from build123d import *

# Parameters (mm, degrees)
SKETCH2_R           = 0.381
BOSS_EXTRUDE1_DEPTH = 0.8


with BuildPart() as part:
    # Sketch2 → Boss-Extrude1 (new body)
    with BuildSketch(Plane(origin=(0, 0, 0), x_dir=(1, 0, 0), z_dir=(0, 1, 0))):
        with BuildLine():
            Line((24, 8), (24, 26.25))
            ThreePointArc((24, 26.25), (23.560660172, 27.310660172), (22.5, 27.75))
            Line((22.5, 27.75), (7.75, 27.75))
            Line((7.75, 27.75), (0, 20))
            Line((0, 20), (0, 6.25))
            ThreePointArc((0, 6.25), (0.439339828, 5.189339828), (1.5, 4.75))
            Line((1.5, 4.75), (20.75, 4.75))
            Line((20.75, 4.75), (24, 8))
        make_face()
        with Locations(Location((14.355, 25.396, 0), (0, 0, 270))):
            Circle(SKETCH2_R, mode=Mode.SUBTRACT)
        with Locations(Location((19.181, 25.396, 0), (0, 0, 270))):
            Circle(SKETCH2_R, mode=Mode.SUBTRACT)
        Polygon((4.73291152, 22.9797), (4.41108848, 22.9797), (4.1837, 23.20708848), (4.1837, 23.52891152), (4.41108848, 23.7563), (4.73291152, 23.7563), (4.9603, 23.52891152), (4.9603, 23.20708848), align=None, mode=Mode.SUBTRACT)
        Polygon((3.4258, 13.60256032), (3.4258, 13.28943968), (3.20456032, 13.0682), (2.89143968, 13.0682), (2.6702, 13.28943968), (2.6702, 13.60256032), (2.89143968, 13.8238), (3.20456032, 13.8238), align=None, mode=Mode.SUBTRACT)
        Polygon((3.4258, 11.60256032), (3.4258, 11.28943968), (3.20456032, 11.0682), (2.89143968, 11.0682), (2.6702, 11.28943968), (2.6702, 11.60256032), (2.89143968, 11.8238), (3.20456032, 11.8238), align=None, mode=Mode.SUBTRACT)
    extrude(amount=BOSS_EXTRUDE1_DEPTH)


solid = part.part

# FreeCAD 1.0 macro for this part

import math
import FreeCAD as App
import Part
import Sketcher

V = App.Vector
Q = App.Units.Quantity


def add_polygon(sketch, points):
    """Adds a closed chain of lines whose ends are joined by coincident constraints."""
    first, n = sketch.GeometryCount, len(points)
    for a, b in zip(points, points[1:] + points[:1]):
        sketch.addGeometry(Part.LineSegment(App.Vector(*a, 0), App.Vector(*b, 0)), False)
    for i in range(n):
        sketch.addConstraint(Sketcher.Constraint("Coincident", first + i, 2, first + (i + 1) % n, 1))

doc = App.newDocument("Part")
body = doc.addObject("PartDesign::Body", "Body")

sketch1 = body.newObject("Sketcher::SketchObject", "Sketch")
sketch1.AttachmentSupport = (doc.getObject("XZ_Plane"), [""])
sketch1.MapMode = "FlatFace"
sketch1.addGeometry(Part.LineSegment(V(24, -8, 0), V(24, -26.25, 0)), False)
sketch1.addGeometry(Part.ArcOfCircle(Part.Circle(V(22.5, -26.25, 0), V(0, 0, 1), 1.5), math.radians(-90), math.radians(0)), False)
sketch1.addGeometry(Part.LineSegment(V(22.5, -27.75, 0), V(7.75, -27.75, 0)), False)
sketch1.addGeometry(Part.LineSegment(V(7.75, -27.75, 0), V(0, -20, 0)), False)
sketch1.addGeometry(Part.LineSegment(V(0, -20, 0), V(0, -6.25, 0)), False)
sketch1.addGeometry(Part.ArcOfCircle(Part.Circle(V(1.5, -6.25, 0), V(0, 0, 1), 1.5), math.radians(90), math.radians(180)), False)
sketch1.addGeometry(Part.LineSegment(V(1.5, -4.75, 0), V(20.75, -4.75, 0)), False)
sketch1.addGeometry(Part.LineSegment(V(20.75, -4.75, 0), V(24, -8, 0)), False)
add_polygon(sketch1, [(3.2, -11.82), (3.43, -11.6), (3.43, -11.29), (3.2, -11.07), (2.89, -11.07), (2.67, -11.29), (2.67, -11.6), (2.89, -11.82)])
add_polygon(sketch1, [(3.2, -13.82), (3.43, -13.6), (3.43, -13.29), (3.2, -13.07), (2.89, -13.07), (2.67, -13.29), (2.67, -13.6), (2.89, -13.82)])
add_polygon(sketch1, [(4.96, -23.21), (4.73, -22.98), (4.41, -22.98), (4.18, -23.21), (4.18, -23.53), (4.41, -23.76), (4.73, -23.76), (4.96, -23.53)])
sketch1.addGeometry(Part.Circle(V(14.36, -25.4, 0), V(0, 0, 1), 0.38), False)
sketch1.addGeometry(Part.Circle(V(19.18, -25.4, 0), V(0, 0, 1), 0.38), False)
sketch1.addConstraint([
    Sketcher.Constraint("Tangent", 0, 2, 1, 2),
    Sketcher.Constraint("Tangent", 1, 1, 2, 1),
    Sketcher.Constraint("Coincident", 2, 2, 3, 1),
    Sketcher.Constraint("Coincident", 3, 2, 4, 1),
    Sketcher.Constraint("Tangent", 4, 2, 5, 2),
    Sketcher.Constraint("Tangent", 5, 1, 6, 1),
    Sketcher.Constraint("Coincident", 6, 2, 7, 1),
    Sketcher.Constraint("Coincident", 7, 2, 0, 1),
    Sketcher.Constraint("Vertical", 0),
    Sketcher.Constraint("Horizontal", 2),
    Sketcher.Constraint("Vertical", 4),
    Sketcher.Constraint("Horizontal", 6),
    Sketcher.Constraint("Vertical", 9),
    Sketcher.Constraint("Horizontal", 11),
    Sketcher.Constraint("Vertical", 13),
    Sketcher.Constraint("Horizontal", 15),
    Sketcher.Constraint("Vertical", 17),
    Sketcher.Constraint("Horizontal", 19),
    Sketcher.Constraint("Vertical", 21),
    Sketcher.Constraint("Horizontal", 23),
    Sketcher.Constraint("Horizontal", 25),
    Sketcher.Constraint("Vertical", 27),
    Sketcher.Constraint("Horizontal", 29),
    Sketcher.Constraint("Vertical", 31),
    Sketcher.Constraint("Equal", 1, 5),
    Sketcher.Constraint("Equal", 32, 33),
    Sketcher.Constraint("PointOnObject", 3, 2, -2),
    Sketcher.Constraint("Parallel", 3, 7),
    Sketcher.Constraint("Perpendicular", 7, 8),
    Sketcher.Constraint("Perpendicular", 8, 10),
    Sketcher.Constraint("Perpendicular", 10, 12),
    Sketcher.Constraint("Perpendicular", 12, 14),
    Sketcher.Constraint("Perpendicular", 14, 16),
    Sketcher.Constraint("Perpendicular", 16, 18),
    Sketcher.Constraint("Perpendicular", 18, 20),
    Sketcher.Constraint("Perpendicular", 20, 22),
    Sketcher.Constraint("Parallel", 22, 24),
    Sketcher.Constraint("Perpendicular", 24, 26),
    Sketcher.Constraint("Perpendicular", 26, 28),
    Sketcher.Constraint("Perpendicular", 28, 30),
    Sketcher.Constraint("Horizontal", 32, 3, 33, 3),
    Sketcher.Constraint("Horizontal", 9, 2, 12, 2),
    Sketcher.Constraint("Horizontal", 8, 2, 13, 2),
    Sketcher.Constraint("Horizontal", 17, 2, 20, 2),
    Sketcher.Constraint("Horizontal", 16, 2, 21, 2),
    Sketcher.Constraint("Horizontal", 27, 2, 30, 2),
    Sketcher.Constraint("Horizontal", 26, 2, 31, 2),
    Sketcher.Constraint("Vertical", 11, 2, 14, 2),
    Sketcher.Constraint("Vertical", 10, 2, 15, 2),
    Sketcher.Constraint("Vertical", 9, 2, 16, 2),
    Sketcher.Constraint("Vertical", 15, 2, 18, 2),
    Sketcher.Constraint("Vertical", 14, 2, 19, 2),
    Sketcher.Constraint("Vertical", 19, 2, 22, 2),
    Sketcher.Constraint("Vertical", 25, 2, 28, 2),
    Sketcher.Constraint("Equal", 23, 9),
    Sketcher.Constraint("Equal", 13, 17),
    Sketcher.Constraint("Equal", 29, 27),
    Sketcher.Constraint("Radius", 1, Q("1.5 mm")),
    Sketcher.Constraint("Diameter", 32, Q("0.762 mm")),
    Sketcher.Constraint("DistanceX", -1, 1, 0, 2, Q("24 mm")),
    Sketcher.Constraint("DistanceY", 3, 2, -1, 1, Q("20 mm")),
    Sketcher.Constraint("DistanceY", 7, 2, -1, 1, Q("8 mm")),
    Sketcher.Constraint("DistanceY", 1, 3, 5, 3, Q("20 mm")),
    Sketcher.Constraint("DistanceY", 16, 2, 8, 2, Q("2 mm")),
    Sketcher.Constraint("DistanceX", 2, 2, 2, 1, Q("14.75 mm")),
    Sketcher.Constraint("DistanceX", -1, 1, 32, 3, Q("14.355 mm")),
    Sketcher.Constraint("DistanceY", 32, 3, -1, 1, Q("25.396 mm")),
    Sketcher.Constraint("DistanceX", -1, 1, 33, 3, Q("19.181 mm")),
    Sketcher.Constraint("DistanceX", 11, 2, 11, 1, Q("0.313121 mm")),
    Sketcher.Constraint("DistanceX", -1, 1, 8, 2, Q("3.4258 mm")),
    Sketcher.Constraint("DistanceY", 10, 2, -1, 1, Q("11.0682 mm")),
    Sketcher.Constraint("DistanceX", -1, 1, 12, 2, Q("2.6702 mm")),
    Sketcher.Constraint("DistanceY", 24, 2, -1, 1, Q("22.9797 mm")),
    Sketcher.Constraint("DistanceX", -1, 1, 26, 2, Q("4.1837 mm")),
    Sketcher.Constraint("DistanceY", 28, 2, -1, 1, Q("23.7563 mm")),
    Sketcher.Constraint("DistanceX", 25, 2, 25, 1, Q("0.321823 mm")),
])
pad1 = body.newObject("PartDesign::Pad", "Pad")
pad1.Profile = sketch1
pad1.Length = 0.8
pad1.Reversed = True

doc.recompute()
